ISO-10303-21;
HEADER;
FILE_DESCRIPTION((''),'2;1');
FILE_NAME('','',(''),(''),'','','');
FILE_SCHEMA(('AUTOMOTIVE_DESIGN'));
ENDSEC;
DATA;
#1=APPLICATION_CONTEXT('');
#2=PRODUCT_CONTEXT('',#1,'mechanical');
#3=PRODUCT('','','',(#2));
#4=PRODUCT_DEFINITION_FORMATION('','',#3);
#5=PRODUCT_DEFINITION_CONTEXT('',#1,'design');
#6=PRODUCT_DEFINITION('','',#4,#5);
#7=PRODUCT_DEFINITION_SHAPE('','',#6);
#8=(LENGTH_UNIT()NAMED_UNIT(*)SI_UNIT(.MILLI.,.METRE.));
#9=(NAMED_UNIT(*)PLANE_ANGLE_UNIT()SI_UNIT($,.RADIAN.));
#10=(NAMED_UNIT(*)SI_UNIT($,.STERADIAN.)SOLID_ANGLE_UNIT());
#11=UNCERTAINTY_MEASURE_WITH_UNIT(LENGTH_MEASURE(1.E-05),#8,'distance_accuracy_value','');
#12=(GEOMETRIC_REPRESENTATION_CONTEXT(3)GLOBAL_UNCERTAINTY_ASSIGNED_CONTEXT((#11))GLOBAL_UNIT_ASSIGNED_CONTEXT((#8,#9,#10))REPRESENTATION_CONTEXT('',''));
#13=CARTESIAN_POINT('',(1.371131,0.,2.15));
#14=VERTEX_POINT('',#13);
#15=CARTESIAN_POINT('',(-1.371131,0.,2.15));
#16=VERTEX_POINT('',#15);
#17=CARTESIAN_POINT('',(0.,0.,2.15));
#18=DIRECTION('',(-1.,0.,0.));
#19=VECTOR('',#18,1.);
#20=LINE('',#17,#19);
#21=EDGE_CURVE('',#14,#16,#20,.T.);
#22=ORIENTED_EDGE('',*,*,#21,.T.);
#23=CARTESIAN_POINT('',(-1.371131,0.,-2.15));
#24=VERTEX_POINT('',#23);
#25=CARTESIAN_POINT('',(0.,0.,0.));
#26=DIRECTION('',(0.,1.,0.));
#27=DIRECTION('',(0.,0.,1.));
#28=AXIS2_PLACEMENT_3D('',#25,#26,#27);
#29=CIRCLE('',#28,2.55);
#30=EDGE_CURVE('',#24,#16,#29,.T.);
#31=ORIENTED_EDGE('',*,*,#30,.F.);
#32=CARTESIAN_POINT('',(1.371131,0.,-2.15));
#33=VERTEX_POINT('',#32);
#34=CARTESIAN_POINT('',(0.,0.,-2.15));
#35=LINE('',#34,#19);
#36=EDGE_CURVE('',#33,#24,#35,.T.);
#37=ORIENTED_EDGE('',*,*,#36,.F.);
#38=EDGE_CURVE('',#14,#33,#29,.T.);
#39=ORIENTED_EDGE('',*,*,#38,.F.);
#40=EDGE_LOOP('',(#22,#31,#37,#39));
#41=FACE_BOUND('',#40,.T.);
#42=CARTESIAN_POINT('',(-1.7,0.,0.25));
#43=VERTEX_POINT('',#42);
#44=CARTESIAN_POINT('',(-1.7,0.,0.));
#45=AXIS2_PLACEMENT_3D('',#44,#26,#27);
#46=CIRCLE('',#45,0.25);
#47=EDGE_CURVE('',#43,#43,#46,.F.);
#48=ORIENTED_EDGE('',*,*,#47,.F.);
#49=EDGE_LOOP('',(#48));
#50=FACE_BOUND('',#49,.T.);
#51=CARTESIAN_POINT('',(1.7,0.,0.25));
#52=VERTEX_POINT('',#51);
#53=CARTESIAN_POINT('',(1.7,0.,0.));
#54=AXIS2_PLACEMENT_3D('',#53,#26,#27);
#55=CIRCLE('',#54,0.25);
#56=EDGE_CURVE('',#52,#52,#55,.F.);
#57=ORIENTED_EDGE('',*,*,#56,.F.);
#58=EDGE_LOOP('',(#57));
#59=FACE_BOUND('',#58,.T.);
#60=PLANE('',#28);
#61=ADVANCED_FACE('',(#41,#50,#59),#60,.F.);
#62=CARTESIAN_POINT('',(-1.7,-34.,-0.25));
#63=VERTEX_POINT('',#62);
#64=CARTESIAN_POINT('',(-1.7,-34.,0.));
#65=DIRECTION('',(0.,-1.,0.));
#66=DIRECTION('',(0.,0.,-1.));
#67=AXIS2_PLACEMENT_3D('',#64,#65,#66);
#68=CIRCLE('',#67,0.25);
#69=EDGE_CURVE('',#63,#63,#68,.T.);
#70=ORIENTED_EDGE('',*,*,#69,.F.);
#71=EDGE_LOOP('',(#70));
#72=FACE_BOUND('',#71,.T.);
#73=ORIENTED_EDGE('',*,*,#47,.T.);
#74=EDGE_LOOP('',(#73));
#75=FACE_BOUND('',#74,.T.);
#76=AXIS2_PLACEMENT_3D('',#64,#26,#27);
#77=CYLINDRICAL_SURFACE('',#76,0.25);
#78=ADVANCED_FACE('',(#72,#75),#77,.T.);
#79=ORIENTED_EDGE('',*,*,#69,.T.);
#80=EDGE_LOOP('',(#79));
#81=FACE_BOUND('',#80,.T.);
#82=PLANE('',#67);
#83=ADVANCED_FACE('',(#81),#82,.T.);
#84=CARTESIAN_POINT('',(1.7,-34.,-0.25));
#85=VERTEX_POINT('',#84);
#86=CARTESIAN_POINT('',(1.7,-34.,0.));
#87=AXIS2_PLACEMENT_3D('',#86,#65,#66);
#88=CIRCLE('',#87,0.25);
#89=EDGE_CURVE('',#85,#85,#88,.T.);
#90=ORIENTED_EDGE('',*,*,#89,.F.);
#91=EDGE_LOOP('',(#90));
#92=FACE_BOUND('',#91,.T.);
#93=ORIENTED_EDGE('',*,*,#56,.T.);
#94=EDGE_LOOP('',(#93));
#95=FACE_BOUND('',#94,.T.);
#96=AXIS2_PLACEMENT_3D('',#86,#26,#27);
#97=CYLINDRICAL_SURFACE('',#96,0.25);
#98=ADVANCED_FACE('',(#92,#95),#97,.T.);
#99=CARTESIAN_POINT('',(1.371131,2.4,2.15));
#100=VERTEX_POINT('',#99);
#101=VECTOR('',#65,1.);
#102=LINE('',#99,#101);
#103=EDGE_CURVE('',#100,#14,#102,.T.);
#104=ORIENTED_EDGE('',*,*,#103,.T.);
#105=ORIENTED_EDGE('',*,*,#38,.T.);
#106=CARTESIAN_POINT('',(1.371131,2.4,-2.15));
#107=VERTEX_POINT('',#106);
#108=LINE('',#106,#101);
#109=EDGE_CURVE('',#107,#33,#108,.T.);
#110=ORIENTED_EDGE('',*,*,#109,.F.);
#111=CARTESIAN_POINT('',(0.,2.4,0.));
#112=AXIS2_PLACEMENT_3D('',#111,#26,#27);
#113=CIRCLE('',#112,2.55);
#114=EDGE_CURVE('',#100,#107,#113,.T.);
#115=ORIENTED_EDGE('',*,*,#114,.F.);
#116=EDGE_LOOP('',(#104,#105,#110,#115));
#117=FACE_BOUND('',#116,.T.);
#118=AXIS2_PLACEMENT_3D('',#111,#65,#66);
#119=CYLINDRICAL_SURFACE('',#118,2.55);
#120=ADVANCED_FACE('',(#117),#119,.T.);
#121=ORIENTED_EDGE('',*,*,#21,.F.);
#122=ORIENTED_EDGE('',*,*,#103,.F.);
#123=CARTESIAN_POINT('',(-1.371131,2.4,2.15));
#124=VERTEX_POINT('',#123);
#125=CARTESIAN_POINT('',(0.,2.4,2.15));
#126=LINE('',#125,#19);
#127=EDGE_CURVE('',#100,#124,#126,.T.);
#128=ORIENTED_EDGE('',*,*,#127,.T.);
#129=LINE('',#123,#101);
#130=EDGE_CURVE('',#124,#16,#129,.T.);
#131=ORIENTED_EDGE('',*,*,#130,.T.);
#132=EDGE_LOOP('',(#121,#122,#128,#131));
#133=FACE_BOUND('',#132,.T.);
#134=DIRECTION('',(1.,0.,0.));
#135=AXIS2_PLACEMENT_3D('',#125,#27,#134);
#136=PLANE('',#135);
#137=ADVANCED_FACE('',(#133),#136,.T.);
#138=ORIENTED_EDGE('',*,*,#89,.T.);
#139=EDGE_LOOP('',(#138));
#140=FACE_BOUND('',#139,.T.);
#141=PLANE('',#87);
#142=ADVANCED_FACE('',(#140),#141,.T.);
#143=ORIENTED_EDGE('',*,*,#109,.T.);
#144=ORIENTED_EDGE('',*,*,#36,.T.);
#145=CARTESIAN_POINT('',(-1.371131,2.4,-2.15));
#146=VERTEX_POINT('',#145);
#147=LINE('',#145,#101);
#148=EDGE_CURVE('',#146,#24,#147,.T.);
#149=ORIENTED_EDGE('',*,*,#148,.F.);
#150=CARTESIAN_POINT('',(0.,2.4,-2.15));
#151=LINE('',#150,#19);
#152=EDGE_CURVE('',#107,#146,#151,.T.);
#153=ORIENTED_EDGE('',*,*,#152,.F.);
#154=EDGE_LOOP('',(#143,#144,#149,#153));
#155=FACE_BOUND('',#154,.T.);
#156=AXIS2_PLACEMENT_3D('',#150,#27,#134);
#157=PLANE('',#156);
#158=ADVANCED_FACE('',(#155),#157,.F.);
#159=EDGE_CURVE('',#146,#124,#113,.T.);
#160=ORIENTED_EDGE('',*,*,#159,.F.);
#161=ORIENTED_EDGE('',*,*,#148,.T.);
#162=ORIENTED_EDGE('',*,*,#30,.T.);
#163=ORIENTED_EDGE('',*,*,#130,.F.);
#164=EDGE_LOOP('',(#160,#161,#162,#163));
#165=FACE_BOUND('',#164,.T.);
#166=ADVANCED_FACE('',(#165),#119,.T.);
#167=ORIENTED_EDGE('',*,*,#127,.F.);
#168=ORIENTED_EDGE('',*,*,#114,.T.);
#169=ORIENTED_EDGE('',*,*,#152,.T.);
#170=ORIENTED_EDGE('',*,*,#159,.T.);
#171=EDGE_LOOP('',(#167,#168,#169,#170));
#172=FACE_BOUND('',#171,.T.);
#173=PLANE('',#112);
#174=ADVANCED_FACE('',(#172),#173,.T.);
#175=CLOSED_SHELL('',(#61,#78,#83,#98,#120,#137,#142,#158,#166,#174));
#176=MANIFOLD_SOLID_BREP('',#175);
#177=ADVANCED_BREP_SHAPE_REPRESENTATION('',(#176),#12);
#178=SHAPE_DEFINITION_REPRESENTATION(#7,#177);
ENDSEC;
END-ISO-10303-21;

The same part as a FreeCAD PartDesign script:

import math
import FreeCAD as App
import Part
import Sketcher

V = App.Vector

doc = App.newDocument("Part")
body = doc.addObject("PartDesign::Body", "Body")

# Sketch on XZ plane
sketch1 = body.newObject("Sketcher::SketchObject", "Sketch")
sketch1.AttachmentSupport = (doc.getObject("XZ_Plane"), [""])
sketch1.MapMode = "FlatFace"
sketch1.addGeometry([
    Part.ArcOfCircle(Part.Circle(V(0, 0, 0), V(0, 0, 1), 2.6), math.radians(-57), math.radians(0)),  # 0
    Part.LineSegment(V(1.4, -2.1, 0), V(-1.4, -2.1, 0)),  # 1
    Part.ArcOfCircle(Part.Circle(V(0, 0, 0), V(0, 0, 1), 2.6), math.radians(-180), math.radians(-123)),  # 2
    Part.ArcOfCircle(Part.Circle(V(0, 0, 0), V(0, 0, 1), 2.6), math.radians(123), math.radians(180)),  # 3
    Part.LineSegment(V(-1.4, 2.1, 0), V(1.4, 2.1, 0)),  # 4
    Part.ArcOfCircle(Part.Circle(V(0, 0, 0), V(0, 0, 1), 2.6), math.radians(0), math.radians(57)),  # 5
], False)
sketch1.addConstraint([
    Sketcher.Constraint("Coincident", 0, 1, 1, 1),
    Sketcher.Constraint("Coincident", 1, 2, 2, 2),
    Sketcher.Constraint("Tangent", 2, 1, 3, 2),
    Sketcher.Constraint("Coincident", 3, 1, 4, 1),
    Sketcher.Constraint("Coincident", 4, 2, 5, 2),
    Sketcher.Constraint("Tangent", 5, 1, 0, 2),
    Sketcher.Constraint("Horizontal", 1),
    Sketcher.Constraint("Horizontal", 4),
    Sketcher.Constraint("Coincident", 0, 3, -1, 1),
    Sketcher.Constraint("Coincident", 2, 3, -1, 1),
    Sketcher.Constraint("Equal", 0, 2),
    Sketcher.Constraint("Equal", 2, 3),
    Sketcher.Constraint("Equal", 3, 5),
    Sketcher.Constraint("PointOnObject", 2, 1, -1),
    Sketcher.Constraint("PointOnObject", 5, 1, -1),
    Sketcher.Constraint("Vertical", 1, 2, 3, 1),
    Sketcher.Constraint("Radius", 0, 2.55),
    Sketcher.Constraint("DistanceY", 0, 1, -1, 1, 2.15),
])
pad1 = body.newObject("PartDesign::Pad", "Pad")
pad1.Profile = sketch1
pad1.Length = 2.4
pad1.Reversed = True

# Sketch on XZ plane
sketch2 = body.newObject("Sketcher::SketchObject", "Sketch001")
sketch2.AttachmentSupport = (doc.getObject("XZ_Plane"), [""])
sketch2.MapMode = "FlatFace"
sketch2.addGeometry([
    Part.Circle(V(-1.7, 0, 0), V(0, 0, 1), 0.25),
    Part.Circle(V(1.7, 0, 0), V(0, 0, 1), 0.25),
], False)
sketch2.addConstraint([
    Sketcher.Constraint("Equal", 0, 1),
    Sketcher.Constraint("Symmetric", 0, 3, 1, 3, -1, 1),
    Sketcher.Constraint("PointOnObject", 0, 3, -1),
    Sketcher.Constraint("Diameter", 0, 0.5),
    Sketcher.Constraint("DistanceX", 0, 3, -1, 1, 1.7),
])
pad2 = body.newObject("PartDesign::Pad", "Pad001")
pad2.Profile = sketch2
pad2.Length = 34

doc.recompute()
